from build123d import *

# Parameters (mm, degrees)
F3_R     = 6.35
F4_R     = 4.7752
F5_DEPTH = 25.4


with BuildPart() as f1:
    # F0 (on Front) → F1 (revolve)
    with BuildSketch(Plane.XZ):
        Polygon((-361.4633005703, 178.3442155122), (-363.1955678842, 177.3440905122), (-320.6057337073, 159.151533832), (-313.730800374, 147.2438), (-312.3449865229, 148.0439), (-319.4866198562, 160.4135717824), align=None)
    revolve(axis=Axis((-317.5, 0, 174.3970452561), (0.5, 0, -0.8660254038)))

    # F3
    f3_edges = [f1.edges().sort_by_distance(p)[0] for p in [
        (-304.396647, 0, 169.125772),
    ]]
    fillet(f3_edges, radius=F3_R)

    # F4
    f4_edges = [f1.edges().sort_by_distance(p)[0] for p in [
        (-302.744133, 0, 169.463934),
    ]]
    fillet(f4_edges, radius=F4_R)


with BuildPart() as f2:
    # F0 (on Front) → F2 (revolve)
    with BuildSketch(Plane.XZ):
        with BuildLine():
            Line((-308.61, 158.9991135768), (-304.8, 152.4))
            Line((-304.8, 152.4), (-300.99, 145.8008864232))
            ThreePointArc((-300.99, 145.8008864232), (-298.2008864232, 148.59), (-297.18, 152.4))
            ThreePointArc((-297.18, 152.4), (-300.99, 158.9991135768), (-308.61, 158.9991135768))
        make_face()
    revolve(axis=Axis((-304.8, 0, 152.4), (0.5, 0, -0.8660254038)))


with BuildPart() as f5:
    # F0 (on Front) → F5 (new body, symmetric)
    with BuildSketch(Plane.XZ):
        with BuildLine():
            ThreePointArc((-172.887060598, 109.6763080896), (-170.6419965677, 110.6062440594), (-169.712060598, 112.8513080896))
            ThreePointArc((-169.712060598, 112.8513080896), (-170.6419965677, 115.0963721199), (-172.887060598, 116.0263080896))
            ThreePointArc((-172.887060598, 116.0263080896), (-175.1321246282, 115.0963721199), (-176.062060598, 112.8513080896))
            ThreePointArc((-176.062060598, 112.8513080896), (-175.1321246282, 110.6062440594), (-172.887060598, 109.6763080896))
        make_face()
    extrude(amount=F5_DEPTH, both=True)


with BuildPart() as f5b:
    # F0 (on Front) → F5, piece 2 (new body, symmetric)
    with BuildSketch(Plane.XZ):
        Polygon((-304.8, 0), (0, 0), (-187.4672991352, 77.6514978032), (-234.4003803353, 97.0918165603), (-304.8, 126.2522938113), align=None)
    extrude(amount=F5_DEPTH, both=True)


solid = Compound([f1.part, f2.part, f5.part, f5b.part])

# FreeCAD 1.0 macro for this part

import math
import FreeCAD as App
import Part
import Sketcher

V = App.Vector
Q = App.Units.Quantity


def edges_at(feature, points):
    """Names of the edges that pass closest to the given points."""
    edges = feature.Shape.Edges
    near = lambda p: min(range(len(edges)), key=lambda i: edges[i].distToShape(Part.Vertex(*p))[0])
    return sorted({f"Edge{near(p) + 1}" for p in points})

doc = App.newDocument("Part")
body = doc.addObject("PartDesign::Body", "Body")

# Sketch on XZ plane
sketch1 = body.newObject("Sketcher::SketchObject", "Sketch")
sketch1.AttachmentSupport = (doc.getObject("XZ_Plane"), [""])
sketch1.MapMode = "FlatFace"
sketch1.addGeometry([
    Part.LineSegment(V(-361.5, 178.3, 0), V(-363.2, 177.3, 0)),  # 0
    Part.LineSegment(V(-363.2, 177.3, 0), V(-320.6, 159.2, 0)),  # 1
    Part.LineSegment(V(-320.6, 159.2, 0), V(-313.7, 147.2, 0)),  # 2
    Part.LineSegment(V(-313.7, 147.2, 0), V(-312.3, 148, 0)),  # 3
    Part.LineSegment(V(-312.3, 148, 0), V(-319.5, 160.4, 0)),  # 4
    Part.LineSegment(V(-319.5, 160.4, 0), V(-361.5, 178.3, 0)),  # 5
], False)
sketch1.addGeometry(Part.LineSegment(V(-330.2, 196.4, 0), V(-304.8, 152.4, 0)), True)  # axis
sketch1.addConstraint([
    Sketcher.Constraint("Coincident", 0, 2, 1, 1),
    Sketcher.Constraint("Coincident", 1, 2, 2, 1),
    Sketcher.Constraint("Coincident", 2, 2, 3, 1),
    Sketcher.Constraint("Coincident", 3, 2, 4, 1),
    Sketcher.Constraint("Coincident", 4, 2, 5, 1),
    Sketcher.Constraint("Coincident", 5, 2, 0, 1),
    Sketcher.Constraint("Perpendicular", 0, 2),
    Sketcher.Constraint("Perpendicular", 2, 3),
    Sketcher.Constraint("Perpendicular", 3, 4),
    Sketcher.Constraint("Parallel", 1, 5),
    Sketcher.Constraint("Parallel", 4, 6),
    Sketcher.Constraint("Distance", 6, Q("2 in")),
    Sketcher.Constraint("DistanceX", 6, 1, -1, 1, Q("13 in")),
    Sketcher.Constraint("DistanceX", 6, 2, -1, 1, Q("12 in")),
    Sketcher.Constraint("DistanceY", -1, 1, 6, 2, Q("6 in")),
    Sketcher.Constraint("DistanceY", 0, 2, 6, 1, Q("0.75 in")),
    Sketcher.Constraint("Distance", 3, Q("0.063 in")),
    Sketcher.Constraint("DistanceY", -1, 1, 2, 2, Q("5.797 in")),
    Sketcher.Constraint("DistanceX", 2, 2, -1, 1, Q("313.7308 mm")),
    Sketcher.Constraint("DistanceX", 5, 2, -1, 1, Q("361.463301 mm")),
    Sketcher.Constraint("Distance", 0, Q("2.00025 mm")),
    Sketcher.Constraint("DistanceX", 4, 2, -1, 1, Q("319.48662 mm")),
])
revolution = body.newObject("PartDesign::Revolution", "Revolution")
revolution.Profile = sketch1
revolution.ReferenceAxis = (sketch1, ["Axis0"])
revolution.Angle = 360
doc.recompute()

fillet = body.newObject("PartDesign::Fillet", "Fillet")
fillet.Base = (revolution, edges_at(revolution, [(-304.397, 0, 169.126)]))
fillet.Radius = Q("0.25 in")
doc.recompute()

fillet2 = body.newObject("PartDesign::Fillet", "Fillet001")
fillet2.Base = (fillet, edges_at(fillet, [(-302.744, 0, 169.464)]))
fillet2.Radius = Q("0.188 in")
body2 = doc.addObject("PartDesign::Body", "Body001")

# Sketch on XZ plane
sketch2 = body2.newObject("Sketcher::SketchObject", "Sketch001")
sketch2.AttachmentSupport = (doc.getObject("XZ_Plane001"), [""])
sketch2.MapMode = "FlatFace"
sketch2.addGeometry([
    Part.LineSegment(V(-309, 159, 0), V(-301, 146, 0)),
    Part.ArcOfCircle(Part.Circle(V(-305, 152, 0), V(0, 0, 1), 8), math.radians(-60), math.radians(0)),
    Part.ArcOfCircle(Part.Circle(V(-305, 152, 0), V(0, 0, 1), 8), math.radians(0), math.radians(120)),
], False)
sketch2.addGeometry(Part.LineSegment(V(-309, 159, 0), V(-301, 146, 0)), True)  # axis
sketch2.addConstraint([
    Sketcher.Constraint("Coincident", 0, 2, 1, 1),
    Sketcher.Constraint("Tangent", 1, 2, 2, 1),
    Sketcher.Constraint("Coincident", 2, 2, 0, 1),
    Sketcher.Constraint("Coincident", 3, 1, 2, 2),
    Sketcher.Constraint("Coincident", 3, 2, 0, 2),
    Sketcher.Constraint("Equal", 1, 2),
    Sketcher.Constraint("Horizontal", 2, 3, 1, 2),
    Sketcher.Constraint("Radius", 1, Q("0.3 in")),
    Sketcher.Constraint("DistanceX", 1, 3, -1, 1, Q("12 in")),
    Sketcher.Constraint("DistanceY", -1, 1, 1, 3, Q("6 in")),
    Sketcher.Constraint("Angle", 0, Q("-60 deg")),
    Sketcher.Constraint("DistanceX", 0, 2, -1, 1, Q("11.85 in")),
])
revolution2 = body2.newObject("PartDesign::Revolution", "Revolution001")
revolution2.Profile = sketch2
revolution2.ReferenceAxis = (sketch2, ["Axis0"])
revolution2.Angle = 360
body3 = doc.addObject("PartDesign::Body", "Body002")

# Sketch on XZ plane
sketch3 = body3.newObject("Sketcher::SketchObject", "Sketch002")
sketch3.AttachmentSupport = (doc.getObject("XZ_Plane002"), [""])
sketch3.MapMode = "FlatFace"
sketch3.addGeometry([
    Part.ArcOfCircle(Part.Circle(V(-172.9, 112.9, 0), V(0, 0, 1), 3.2), math.radians(-90), math.radians(0)),
    Part.ArcOfCircle(Part.Circle(V(-172.9, 112.9, 0), V(0, 0, 1), 3.2), math.radians(0), math.radians(90)),
    Part.ArcOfCircle(Part.Circle(V(-172.9, 112.9, 0), V(0, 0, 1), 3.2), math.radians(90), math.radians(180)),
    Part.ArcOfCircle(Part.Circle(V(-172.9, 112.9, 0), V(0, 0, 1), 3.2), math.radians(180), math.radians(270)),
], False)
sketch3.addConstraint([
    Sketcher.Constraint("Tangent", 0, 2, 1, 1),
    Sketcher.Constraint("Tangent", 1, 2, 2, 1),
    Sketcher.Constraint("Tangent", 2, 2, 3, 1),
    Sketcher.Constraint("Tangent", 3, 2, 0, 1),
    Sketcher.Constraint("Equal", 0, 1),
    Sketcher.Constraint("Horizontal", 3, 3, 0, 2),
    Sketcher.Constraint("Horizontal", 0, 2, 2, 2),
    Sketcher.Constraint("Vertical", 3, 3, 1, 2),
    Sketcher.Constraint("Vertical", 1, 2, 3, 2),
    Sketcher.Constraint("Radius", 0, Q("0.125 in")),
    Sketcher.Constraint("DistanceX", 0, 3, -1, 1, Q("172.887061 mm")),
    Sketcher.Constraint("DistanceY", -1, 1, 0, 3, Q("112.851308 mm")),
])
pad1 = body3.newObject("PartDesign::Pad", "Pad")
pad1.Profile = sketch3
pad1.Length = Q("2 in")
pad1.Midplane = True
body4 = doc.addObject("PartDesign::Body", "Body003")

# Sketch on XZ plane
sketch4 = body4.newObject("Sketcher::SketchObject", "Sketch003")
sketch4.AttachmentSupport = (doc.getObject("XZ_Plane003"), [""])
sketch4.MapMode = "FlatFace"
sketch4.addGeometry([
    Part.LineSegment(V(-305, 0, 0), V(0, 0, 0)),  # 0
    Part.LineSegment(V(0, 0, 0), V(-187, 78, 0)),  # 1
    Part.LineSegment(V(-187, 78, 0), V(-234, 97, 0)),  # 2
    Part.LineSegment(V(-234, 97, 0), V(-305, 126, 0)),  # 3
    Part.LineSegment(V(-305, 126, 0), V(-305, 0, 0)),  # 4
], False)
sketch4.addConstraint([
    Sketcher.Constraint("Coincident", 0, 2, 1, 1),
    Sketcher.Constraint("Coincident", 1, 2, 2, 1),
    Sketcher.Constraint("Coincident", 2, 2, 3, 1),
    Sketcher.Constraint("Coincident", 3, 2, 4, 1),
    Sketcher.Constraint("Coincident", 4, 2, 0, 1),
    Sketcher.Constraint("Horizontal", 0),
    Sketcher.Constraint("Vertical", 4),
    Sketcher.Constraint("Coincident", 0, 2, -1, 1),
    Sketcher.Constraint("Parallel", 1, 2),
    Sketcher.Constraint("Parallel", 2, 3),
    Sketcher.Constraint("DistanceX", 0, 1, 0, 2, Q("12 in")),
    Sketcher.Constraint("Distance", 2, Q("2 in")),
    Sketcher.Constraint("Distance", 3, Q("3 in")),
    Sketcher.Constraint("Angle", 1, Q("157.5 deg")),
])
pad2 = body4.newObject("PartDesign::Pad", "Pad001")
pad2.Profile = sketch4
pad2.Length = Q("2 in")
pad2.Midplane = True

doc.recompute()
